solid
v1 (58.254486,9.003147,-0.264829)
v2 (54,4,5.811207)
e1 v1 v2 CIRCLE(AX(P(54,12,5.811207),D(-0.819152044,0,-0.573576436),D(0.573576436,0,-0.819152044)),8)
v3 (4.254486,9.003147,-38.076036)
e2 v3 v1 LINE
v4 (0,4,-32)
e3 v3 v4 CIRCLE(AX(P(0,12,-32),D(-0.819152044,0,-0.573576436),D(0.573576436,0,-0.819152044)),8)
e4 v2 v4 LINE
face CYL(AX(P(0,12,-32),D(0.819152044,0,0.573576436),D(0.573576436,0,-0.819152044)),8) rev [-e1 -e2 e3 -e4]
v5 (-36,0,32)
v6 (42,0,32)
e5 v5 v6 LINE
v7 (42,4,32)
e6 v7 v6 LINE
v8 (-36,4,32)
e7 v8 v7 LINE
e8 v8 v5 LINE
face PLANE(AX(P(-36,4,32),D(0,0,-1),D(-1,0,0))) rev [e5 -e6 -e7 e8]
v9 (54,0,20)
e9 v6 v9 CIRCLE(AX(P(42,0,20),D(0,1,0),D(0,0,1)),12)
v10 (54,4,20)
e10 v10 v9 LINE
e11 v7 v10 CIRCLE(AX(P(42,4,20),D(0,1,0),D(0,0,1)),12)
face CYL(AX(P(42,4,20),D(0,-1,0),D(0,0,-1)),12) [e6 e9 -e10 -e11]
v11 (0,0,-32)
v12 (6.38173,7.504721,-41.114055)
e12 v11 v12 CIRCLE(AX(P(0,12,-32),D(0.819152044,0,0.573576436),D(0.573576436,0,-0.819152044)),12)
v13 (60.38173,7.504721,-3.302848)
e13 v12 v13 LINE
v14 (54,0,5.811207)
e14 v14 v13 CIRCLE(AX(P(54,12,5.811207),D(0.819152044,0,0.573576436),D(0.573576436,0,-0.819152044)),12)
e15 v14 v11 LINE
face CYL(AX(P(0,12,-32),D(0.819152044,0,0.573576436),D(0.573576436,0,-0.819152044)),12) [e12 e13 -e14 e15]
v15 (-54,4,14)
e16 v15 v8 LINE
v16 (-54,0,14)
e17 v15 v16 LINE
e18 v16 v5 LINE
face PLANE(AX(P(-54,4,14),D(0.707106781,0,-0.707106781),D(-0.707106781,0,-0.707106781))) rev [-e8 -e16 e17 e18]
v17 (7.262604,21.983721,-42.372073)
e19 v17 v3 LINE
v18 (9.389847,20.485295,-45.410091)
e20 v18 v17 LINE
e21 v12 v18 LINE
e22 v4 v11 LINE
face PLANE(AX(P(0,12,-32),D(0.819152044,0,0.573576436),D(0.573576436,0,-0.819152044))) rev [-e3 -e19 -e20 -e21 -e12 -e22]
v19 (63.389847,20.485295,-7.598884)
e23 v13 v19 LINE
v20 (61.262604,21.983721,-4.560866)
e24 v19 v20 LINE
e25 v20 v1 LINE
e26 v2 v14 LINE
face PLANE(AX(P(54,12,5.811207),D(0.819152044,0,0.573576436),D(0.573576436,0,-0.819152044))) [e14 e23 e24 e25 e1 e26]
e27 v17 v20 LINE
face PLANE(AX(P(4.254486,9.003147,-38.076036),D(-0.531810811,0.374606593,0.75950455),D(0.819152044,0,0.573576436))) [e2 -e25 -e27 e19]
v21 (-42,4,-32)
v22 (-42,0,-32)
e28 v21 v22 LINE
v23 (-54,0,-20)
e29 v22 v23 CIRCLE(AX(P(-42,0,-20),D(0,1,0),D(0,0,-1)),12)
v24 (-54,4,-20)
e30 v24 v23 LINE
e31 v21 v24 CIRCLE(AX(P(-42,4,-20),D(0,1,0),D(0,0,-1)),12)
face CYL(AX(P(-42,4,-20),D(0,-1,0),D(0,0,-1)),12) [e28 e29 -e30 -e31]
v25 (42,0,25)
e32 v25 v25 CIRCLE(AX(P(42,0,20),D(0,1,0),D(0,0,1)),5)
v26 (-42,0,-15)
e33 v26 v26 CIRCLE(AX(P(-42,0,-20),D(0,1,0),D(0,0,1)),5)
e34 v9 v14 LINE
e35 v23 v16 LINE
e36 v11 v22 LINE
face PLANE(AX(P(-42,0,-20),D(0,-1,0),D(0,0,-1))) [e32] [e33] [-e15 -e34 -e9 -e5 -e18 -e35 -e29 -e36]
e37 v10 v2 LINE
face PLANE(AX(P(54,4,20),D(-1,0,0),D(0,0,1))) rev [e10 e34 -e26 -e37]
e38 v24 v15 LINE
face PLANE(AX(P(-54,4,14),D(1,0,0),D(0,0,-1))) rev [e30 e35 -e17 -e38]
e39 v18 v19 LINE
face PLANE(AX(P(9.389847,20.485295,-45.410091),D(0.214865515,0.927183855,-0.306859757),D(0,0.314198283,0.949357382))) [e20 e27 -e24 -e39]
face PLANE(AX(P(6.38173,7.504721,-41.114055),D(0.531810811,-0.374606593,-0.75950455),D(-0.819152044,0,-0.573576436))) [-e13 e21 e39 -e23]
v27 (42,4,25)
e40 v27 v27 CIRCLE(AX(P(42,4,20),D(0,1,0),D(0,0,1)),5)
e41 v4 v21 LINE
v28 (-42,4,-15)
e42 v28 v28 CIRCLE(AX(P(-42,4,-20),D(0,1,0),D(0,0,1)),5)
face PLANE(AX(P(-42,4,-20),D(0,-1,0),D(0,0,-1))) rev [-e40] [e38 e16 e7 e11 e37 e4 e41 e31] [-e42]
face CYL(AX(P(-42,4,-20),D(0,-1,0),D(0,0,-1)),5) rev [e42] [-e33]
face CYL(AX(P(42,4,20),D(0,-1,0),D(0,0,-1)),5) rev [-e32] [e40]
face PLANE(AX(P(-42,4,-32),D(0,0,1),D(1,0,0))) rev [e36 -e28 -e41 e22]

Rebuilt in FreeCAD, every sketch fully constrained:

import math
import FreeCAD as App
import Part
import Sketcher
Q = App.Units.Quantity

doc = App.newDocument("Part")
body = doc.addObject("PartDesign::Body", "Body")

# Sketch on XZ plane
sketch1 = body.newObject("Sketcher::SketchObject", "Sketch")
sketch1.AttachmentSupport = (doc.getObject("XZ_Plane"), [""])
sketch1.MapMode = "FlatFace"
sketch1.addGeometry(Part.LineSegment(App.Vector(-54, 14, 0), App.Vector(-36, 32, 0)), False)
sketch1.addGeometry(Part.LineSegment(App.Vector(-36, 32, 0), App.Vector(42, 32, 0)), False)
sketch1.addGeometry(Part.ArcOfCircle(Part.Circle(App.Vector(42, 20, 0), App.Vector(0, 0, 1), 12), math.radians(0), math.radians(90)), False)
sketch1.addGeometry(Part.LineSegment(App.Vector(54, 20, 0), App.Vector(54, 5.811207, 0)), False)
sketch1.addGeometry(Part.LineSegment(App.Vector(54, 5.811207, 0), App.Vector(0, -32, 0)), False)
sketch1.addGeometry(Part.LineSegment(App.Vector(0, -32, 0), App.Vector(-42, -32, 0)), False)
sketch1.addGeometry(Part.ArcOfCircle(Part.Circle(App.Vector(-42, -20, 0), App.Vector(0, 0, 1), 12), math.radians(-180), math.radians(-90)), False)
sketch1.addGeometry(Part.LineSegment(App.Vector(-54, -20, 0), App.Vector(-54, 14, 0)), False)
sketch1.addGeometry(Part.Circle(App.Vector(42, 20, 0), App.Vector(0, 0, 1), 5), False)
sketch1.addGeometry(Part.Circle(App.Vector(-42, -20, 0), App.Vector(0, 0, 1), 5), False)
sketch1.addConstraint(Sketcher.Constraint("Coincident", 0, 2, 1, 1))
sketch1.addConstraint(Sketcher.Constraint("Tangent", 1, 2, 2, 2))
sketch1.addConstraint(Sketcher.Constraint("Tangent", 2, 1, 3, 1))
sketch1.addConstraint(Sketcher.Constraint("Coincident", 3, 2, 4, 1))
sketch1.addConstraint(Sketcher.Constraint("Coincident", 4, 2, 5, 1))
sketch1.addConstraint(Sketcher.Constraint("Tangent", 5, 2, 6, 2))
sketch1.addConstraint(Sketcher.Constraint("Tangent", 6, 1, 7, 1))
sketch1.addConstraint(Sketcher.Constraint("Coincident", 7, 2, 0, 1))
sketch1.addConstraint(Sketcher.Constraint("Horizontal", 1))
sketch1.addConstraint(Sketcher.Constraint("Vertical", 3))
sketch1.addConstraint(Sketcher.Constraint("Horizontal", 5))
sketch1.addConstraint(Sketcher.Constraint("Vertical", 7))
sketch1.addConstraint(Sketcher.Constraint("Coincident", 8, 3, 2, 3))
sketch1.addConstraint(Sketcher.Constraint("Coincident", 9, 3, 6, 3))
sketch1.addConstraint(Sketcher.Constraint("Equal", 2, 6))
sketch1.addConstraint(Sketcher.Constraint("Equal", 8, 9))
sketch1.addConstraint(Sketcher.Constraint("Symmetric", 2, 3, 6, 3, -1, 1))
sketch1.addConstraint(Sketcher.Constraint("PointOnObject", 4, 2, -2))
sketch1.addConstraint(Sketcher.Constraint("Diameter", 8, Q("10 mm")))
sketch1.addConstraint(Sketcher.Constraint("Radius", 2, Q("12 mm")))
sketch1.addConstraint(Sketcher.Constraint("DistanceX", 1, 1, 1, 2, Q("78 mm")))
sketch1.addConstraint(Sketcher.Constraint("DistanceX", 5, 2, 5, 1, Q("42 mm")))
sketch1.addConstraint(Sketcher.Constraint("DistanceY", 7, 1, 7, 2, Q("34 mm")))
sketch1.addConstraint(Sketcher.Constraint("Angle", 0, Q("45 deg")))
sketch1.addConstraint(Sketcher.Constraint("Angle", 4, Q("-145 deg")))
pad1 = body.newObject("PartDesign::Pad", "Pad")
pad1.Profile = sketch1
pad1.Length = 4
pad1.Reversed = True

# Sketch on an angled plane
sketch2 = body.newObject("Sketcher::SketchObject", "Sketch001")
sketch2.Placement = App.Placement(App.Vector(38.964918, 0, 27.283529), App.Rotation(App.Vector(0, -1, 0), App.Vector(0.573576436, 0, -0.819152044), App.Vector(0.819152044, 0, 0.573576436), "ZXY"))
sketch2.addGeometry(Part.LineSegment(App.Vector(-21.983721, 38.874829, 0), App.Vector(-9.003147, 33.630336, 0)), False)
sketch2.addGeometry(Part.ArcOfCircle(Part.Circle(App.Vector(-12, 26.212865, 0), App.Vector(0, 0, 1), 8), math.radians(0), math.radians(68)), False)
sketch2.addGeometry(Part.LineSegment(App.Vector(-4, 26.212865, 0), App.Vector(0, 26.212865, 0)), False)
sketch2.addGeometry(Part.ArcOfCircle(Part.Circle(App.Vector(-12, 26.212865, 0), App.Vector(0, 0, 1), 12), math.radians(0), math.radians(68)), False)
sketch2.addGeometry(Part.LineSegment(App.Vector(-7.504721, 37.339072, 0), App.Vector(-20.485295, 42.583564, 0)), False)
sketch2.addGeometry(Part.LineSegment(App.Vector(-20.485295, 42.583564, 0), App.Vector(-21.983721, 38.874829, 0)), False)
sketch2.addConstraint(Sketcher.Constraint("Tangent", 0, 2, 1, 2))
sketch2.addConstraint(Sketcher.Constraint("Coincident", 1, 1, 2, 1))
sketch2.addConstraint(Sketcher.Constraint("Coincident", 2, 2, 3, 1))
sketch2.addConstraint(Sketcher.Constraint("Tangent", 3, 2, 4, 1))
sketch2.addConstraint(Sketcher.Constraint("Coincident", 4, 2, 5, 1))
sketch2.addConstraint(Sketcher.Constraint("Coincident", 5, 2, 0, 1))
sketch2.addConstraint(Sketcher.Constraint("Horizontal", 2))
sketch2.addConstraint(Sketcher.Constraint("Coincident", 3, 3, 1, 3))
sketch2.addConstraint(Sketcher.Constraint("PointOnObject", 2, 2, -2))
sketch2.addConstraint(Sketcher.Constraint("Parallel", 0, 4))
sketch2.addConstraint(Sketcher.Constraint("Perpendicular", 4, 5))
sketch2.addConstraint(Sketcher.Constraint("Horizontal", 3, 3, 1, 1))
sketch2.addConstraint(Sketcher.Constraint("Radius", 1, Q("8 mm")))
sketch2.addConstraint(Sketcher.Constraint("Radius", 3, Q("12 mm")))
sketch2.addConstraint(Sketcher.Constraint("Angle", 0, Q("-22 deg")))
sketch2.addConstraint(Sketcher.Constraint("Distance", 0, Q("14 mm")))
sketch2.addConstraint(Sketcher.Constraint("DistanceY", -1, 1, 3, 2, Q("37.339072 mm")))
pad2 = body.newObject("PartDesign::Pad", "Pad001")
pad2.Profile = sketch2
pad2.Length = 65.921828
pad2.Reversed = True

doc.recompute()
